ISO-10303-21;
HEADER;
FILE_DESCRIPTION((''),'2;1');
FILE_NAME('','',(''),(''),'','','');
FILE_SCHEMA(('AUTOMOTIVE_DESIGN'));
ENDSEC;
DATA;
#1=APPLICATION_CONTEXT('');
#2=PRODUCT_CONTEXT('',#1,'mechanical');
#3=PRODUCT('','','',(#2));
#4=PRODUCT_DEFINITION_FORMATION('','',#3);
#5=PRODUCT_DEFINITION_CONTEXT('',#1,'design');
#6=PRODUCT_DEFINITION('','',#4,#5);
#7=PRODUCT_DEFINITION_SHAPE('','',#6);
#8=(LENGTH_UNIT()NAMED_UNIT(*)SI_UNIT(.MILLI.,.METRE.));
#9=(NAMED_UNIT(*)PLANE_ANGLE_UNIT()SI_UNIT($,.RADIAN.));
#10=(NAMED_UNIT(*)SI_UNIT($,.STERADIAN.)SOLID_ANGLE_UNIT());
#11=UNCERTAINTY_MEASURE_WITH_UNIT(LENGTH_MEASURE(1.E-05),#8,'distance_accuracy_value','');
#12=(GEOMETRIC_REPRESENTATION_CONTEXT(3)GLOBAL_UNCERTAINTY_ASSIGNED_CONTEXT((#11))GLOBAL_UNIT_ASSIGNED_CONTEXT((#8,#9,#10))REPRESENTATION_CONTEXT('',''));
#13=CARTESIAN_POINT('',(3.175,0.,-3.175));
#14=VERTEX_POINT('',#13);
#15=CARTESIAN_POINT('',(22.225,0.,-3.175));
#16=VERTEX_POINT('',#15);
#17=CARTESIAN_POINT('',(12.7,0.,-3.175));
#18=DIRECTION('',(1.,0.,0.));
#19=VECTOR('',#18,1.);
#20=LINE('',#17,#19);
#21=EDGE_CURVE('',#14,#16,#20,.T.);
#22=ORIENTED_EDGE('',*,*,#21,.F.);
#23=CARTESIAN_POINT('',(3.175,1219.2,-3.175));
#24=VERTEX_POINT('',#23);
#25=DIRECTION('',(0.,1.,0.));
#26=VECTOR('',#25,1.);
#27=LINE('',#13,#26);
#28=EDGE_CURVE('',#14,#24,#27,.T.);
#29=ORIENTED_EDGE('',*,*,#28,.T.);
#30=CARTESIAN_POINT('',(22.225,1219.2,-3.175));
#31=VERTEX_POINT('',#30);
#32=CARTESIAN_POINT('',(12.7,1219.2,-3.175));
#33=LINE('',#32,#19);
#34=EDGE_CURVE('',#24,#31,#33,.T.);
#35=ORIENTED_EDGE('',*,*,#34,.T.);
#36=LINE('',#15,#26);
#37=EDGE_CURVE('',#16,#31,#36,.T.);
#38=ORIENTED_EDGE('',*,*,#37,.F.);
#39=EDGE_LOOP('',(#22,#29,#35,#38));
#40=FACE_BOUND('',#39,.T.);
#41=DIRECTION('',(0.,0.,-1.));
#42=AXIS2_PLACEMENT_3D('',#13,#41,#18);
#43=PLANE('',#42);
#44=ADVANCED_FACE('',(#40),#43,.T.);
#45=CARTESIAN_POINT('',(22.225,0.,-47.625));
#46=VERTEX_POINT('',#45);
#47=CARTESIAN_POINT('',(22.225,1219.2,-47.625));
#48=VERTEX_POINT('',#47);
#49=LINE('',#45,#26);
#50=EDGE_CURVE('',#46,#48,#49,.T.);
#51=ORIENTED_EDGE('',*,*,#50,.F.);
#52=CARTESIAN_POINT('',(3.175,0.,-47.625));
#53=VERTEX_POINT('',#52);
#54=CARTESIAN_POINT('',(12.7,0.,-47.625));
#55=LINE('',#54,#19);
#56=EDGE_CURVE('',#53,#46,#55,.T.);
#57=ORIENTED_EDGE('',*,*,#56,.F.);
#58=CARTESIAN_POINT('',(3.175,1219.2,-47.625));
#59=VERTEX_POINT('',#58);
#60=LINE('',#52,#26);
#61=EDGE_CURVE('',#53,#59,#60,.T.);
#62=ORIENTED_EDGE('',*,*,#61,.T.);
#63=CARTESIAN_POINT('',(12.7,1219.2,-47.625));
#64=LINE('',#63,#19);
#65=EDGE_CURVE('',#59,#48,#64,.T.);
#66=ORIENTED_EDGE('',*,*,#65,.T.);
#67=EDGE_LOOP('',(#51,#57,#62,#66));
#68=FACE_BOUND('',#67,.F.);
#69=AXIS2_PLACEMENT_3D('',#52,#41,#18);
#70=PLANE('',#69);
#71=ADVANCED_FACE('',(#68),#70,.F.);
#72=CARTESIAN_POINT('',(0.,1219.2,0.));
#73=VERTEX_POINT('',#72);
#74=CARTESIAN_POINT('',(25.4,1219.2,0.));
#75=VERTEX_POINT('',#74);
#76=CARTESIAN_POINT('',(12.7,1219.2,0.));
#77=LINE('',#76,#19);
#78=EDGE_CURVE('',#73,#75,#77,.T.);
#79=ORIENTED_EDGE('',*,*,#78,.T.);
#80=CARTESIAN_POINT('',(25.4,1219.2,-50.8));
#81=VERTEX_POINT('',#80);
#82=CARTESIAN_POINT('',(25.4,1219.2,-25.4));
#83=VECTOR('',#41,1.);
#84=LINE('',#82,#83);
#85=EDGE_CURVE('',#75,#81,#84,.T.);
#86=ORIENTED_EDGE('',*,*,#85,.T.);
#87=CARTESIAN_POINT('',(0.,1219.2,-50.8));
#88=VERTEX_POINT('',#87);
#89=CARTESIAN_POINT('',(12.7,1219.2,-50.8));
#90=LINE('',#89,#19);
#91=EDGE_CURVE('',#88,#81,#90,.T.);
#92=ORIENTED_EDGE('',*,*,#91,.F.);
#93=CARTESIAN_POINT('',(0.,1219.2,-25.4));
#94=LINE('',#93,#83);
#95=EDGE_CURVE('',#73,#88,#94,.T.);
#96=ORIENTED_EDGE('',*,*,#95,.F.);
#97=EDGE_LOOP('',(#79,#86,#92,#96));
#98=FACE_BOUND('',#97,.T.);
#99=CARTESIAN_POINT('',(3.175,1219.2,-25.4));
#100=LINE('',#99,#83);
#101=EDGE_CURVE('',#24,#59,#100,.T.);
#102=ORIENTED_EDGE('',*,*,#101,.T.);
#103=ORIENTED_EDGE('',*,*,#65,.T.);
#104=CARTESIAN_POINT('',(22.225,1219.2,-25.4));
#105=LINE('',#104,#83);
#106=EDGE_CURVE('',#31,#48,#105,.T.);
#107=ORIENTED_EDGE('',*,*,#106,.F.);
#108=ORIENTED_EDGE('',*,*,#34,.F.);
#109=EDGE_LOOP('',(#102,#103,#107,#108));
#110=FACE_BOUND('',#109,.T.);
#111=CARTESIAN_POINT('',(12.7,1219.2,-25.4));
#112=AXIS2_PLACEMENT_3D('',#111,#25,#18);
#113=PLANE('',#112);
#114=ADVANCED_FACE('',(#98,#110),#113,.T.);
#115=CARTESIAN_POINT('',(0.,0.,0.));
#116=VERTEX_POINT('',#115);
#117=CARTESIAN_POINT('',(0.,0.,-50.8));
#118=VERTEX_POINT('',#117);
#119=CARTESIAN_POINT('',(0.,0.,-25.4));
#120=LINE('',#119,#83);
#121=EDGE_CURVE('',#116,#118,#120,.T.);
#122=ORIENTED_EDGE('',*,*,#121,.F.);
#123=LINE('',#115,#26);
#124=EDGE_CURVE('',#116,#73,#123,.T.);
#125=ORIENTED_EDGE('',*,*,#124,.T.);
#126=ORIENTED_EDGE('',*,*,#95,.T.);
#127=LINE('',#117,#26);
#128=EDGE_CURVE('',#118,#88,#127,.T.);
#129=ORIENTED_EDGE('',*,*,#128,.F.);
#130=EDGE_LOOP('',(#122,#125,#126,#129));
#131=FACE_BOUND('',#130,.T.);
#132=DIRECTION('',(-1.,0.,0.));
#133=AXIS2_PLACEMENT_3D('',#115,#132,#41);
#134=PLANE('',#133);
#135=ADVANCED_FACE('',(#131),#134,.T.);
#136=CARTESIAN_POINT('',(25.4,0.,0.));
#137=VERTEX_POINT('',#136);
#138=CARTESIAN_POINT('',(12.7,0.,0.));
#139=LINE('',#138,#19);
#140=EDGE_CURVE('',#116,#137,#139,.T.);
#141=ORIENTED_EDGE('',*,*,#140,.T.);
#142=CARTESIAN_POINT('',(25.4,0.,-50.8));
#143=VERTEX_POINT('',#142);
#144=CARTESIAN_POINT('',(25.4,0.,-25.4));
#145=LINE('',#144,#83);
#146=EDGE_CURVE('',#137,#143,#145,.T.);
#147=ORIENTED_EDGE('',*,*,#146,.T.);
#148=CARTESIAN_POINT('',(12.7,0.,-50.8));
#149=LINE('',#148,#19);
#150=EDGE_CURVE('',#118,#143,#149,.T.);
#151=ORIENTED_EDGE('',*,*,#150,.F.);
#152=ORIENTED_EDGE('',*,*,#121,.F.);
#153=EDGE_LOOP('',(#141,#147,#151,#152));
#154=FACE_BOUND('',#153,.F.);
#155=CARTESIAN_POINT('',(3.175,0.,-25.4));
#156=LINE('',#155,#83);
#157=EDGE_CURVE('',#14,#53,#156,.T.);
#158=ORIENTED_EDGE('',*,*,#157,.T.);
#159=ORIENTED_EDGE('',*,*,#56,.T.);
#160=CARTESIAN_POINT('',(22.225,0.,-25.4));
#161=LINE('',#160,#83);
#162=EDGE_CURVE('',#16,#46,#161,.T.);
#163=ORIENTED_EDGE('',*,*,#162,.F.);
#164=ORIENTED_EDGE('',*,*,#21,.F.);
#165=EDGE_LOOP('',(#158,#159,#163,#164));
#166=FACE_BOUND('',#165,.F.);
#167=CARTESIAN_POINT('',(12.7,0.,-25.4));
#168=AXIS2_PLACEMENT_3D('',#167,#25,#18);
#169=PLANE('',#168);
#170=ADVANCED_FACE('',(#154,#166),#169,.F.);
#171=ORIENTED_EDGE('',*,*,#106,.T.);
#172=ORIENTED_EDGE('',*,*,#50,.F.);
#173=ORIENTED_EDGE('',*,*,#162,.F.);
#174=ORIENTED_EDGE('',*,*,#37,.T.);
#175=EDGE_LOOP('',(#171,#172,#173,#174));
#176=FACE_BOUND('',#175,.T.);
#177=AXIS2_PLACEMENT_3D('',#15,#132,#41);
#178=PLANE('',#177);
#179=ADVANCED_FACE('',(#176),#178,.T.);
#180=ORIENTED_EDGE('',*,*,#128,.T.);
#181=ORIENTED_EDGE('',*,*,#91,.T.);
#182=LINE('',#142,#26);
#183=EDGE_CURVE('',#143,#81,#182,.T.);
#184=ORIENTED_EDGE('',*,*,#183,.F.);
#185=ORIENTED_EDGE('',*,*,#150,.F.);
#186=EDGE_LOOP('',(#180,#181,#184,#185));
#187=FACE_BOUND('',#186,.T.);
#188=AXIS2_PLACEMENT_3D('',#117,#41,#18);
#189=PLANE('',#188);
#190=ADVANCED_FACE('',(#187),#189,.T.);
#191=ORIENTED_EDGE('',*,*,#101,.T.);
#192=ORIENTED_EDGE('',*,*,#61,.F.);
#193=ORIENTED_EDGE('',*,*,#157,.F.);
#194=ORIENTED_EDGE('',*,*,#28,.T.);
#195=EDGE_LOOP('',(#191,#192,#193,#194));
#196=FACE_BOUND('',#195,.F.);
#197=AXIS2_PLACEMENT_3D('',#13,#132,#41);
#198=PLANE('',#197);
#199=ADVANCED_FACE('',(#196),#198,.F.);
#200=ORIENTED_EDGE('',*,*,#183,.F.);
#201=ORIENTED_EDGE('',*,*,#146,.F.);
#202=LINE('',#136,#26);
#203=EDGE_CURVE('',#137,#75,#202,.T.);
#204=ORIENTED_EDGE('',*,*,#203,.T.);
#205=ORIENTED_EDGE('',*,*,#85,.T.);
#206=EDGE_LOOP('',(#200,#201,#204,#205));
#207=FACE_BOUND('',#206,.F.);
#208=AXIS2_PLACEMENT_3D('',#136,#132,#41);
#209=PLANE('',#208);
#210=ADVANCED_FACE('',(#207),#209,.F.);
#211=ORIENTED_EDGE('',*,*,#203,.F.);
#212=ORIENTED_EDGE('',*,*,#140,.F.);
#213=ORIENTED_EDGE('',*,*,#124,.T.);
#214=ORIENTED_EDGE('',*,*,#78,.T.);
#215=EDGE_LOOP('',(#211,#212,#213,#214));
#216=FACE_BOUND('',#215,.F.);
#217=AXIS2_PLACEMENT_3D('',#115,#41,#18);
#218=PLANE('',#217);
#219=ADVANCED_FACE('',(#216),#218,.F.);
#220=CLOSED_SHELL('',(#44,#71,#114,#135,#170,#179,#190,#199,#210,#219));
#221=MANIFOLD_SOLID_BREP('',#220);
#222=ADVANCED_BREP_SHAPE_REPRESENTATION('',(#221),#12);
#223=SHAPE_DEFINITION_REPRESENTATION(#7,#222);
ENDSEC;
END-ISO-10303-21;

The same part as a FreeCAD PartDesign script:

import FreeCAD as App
import Part
import Sketcher
from FreeCAD import Vector
Q = App.Units.Quantity

doc = App.newDocument("Part")
body = doc.addObject("PartDesign::Body", "Body")

# Sketch on XZ plane
sketch1 = body.newObject("Sketcher::SketchObject", "Sketch")
sketch1.AttachmentSupport = (doc.getObject("XZ_Plane"), [""])
sketch1.MapMode = "FlatFace"
sketch1.addGeometry([
    Part.LineSegment(Vector(0, -51, 0), Vector(0, 0, 0)),  # 0
    Part.LineSegment(Vector(0, 0, 0), Vector(25, 0, 0)),  # 1
    Part.LineSegment(Vector(25, 0, 0), Vector(25, -51, 0)),  # 2
    Part.LineSegment(Vector(25, -51, 0), Vector(0, -51, 0)),  # 3
    Part.LineSegment(Vector(22, -3, 0), Vector(3, -3, 0)),  # 4
    Part.LineSegment(Vector(3, -3, 0), Vector(3, -48, 0)),  # 5
    Part.LineSegment(Vector(3, -48, 0), Vector(22, -48, 0)),  # 6
    Part.LineSegment(Vector(22, -48, 0), Vector(22, -3, 0)),  # 7
], False)
sketch1.addConstraint([
    Sketcher.Constraint("Coincident", 0, 2, 1, 1),
    Sketcher.Constraint("Coincident", 1, 2, 2, 1),
    Sketcher.Constraint("Coincident", 2, 2, 3, 1),
    Sketcher.Constraint("Coincident", 3, 2, 0, 1),
    Sketcher.Constraint("Coincident", 4, 2, 5, 1),
    Sketcher.Constraint("Coincident", 5, 2, 6, 1),
    Sketcher.Constraint("Coincident", 6, 2, 7, 1),
    Sketcher.Constraint("Coincident", 7, 2, 4, 1),
    Sketcher.Constraint("Vertical", 0),
    Sketcher.Constraint("Horizontal", 1),
    Sketcher.Constraint("Vertical", 2),
    Sketcher.Constraint("Horizontal", 3),
    Sketcher.Constraint("Horizontal", 4),
    Sketcher.Constraint("Vertical", 5),
    Sketcher.Constraint("Horizontal", 6),
    Sketcher.Constraint("Vertical", 7),
    Sketcher.Constraint("Coincident", 0, 2, -1, 1),
    Sketcher.Constraint("DistanceX", 1, 1, 1, 2, Q("1 in")),
    Sketcher.Constraint("DistanceY", 0, 1, 0, 2, Q("2 in")),
    Sketcher.Constraint("DistanceX", 4, 2, 4, 1, Q("0.75 in")),
    Sketcher.Constraint("DistanceY", 5, 2, 5, 1, Q("1.75 in")),
    Sketcher.Constraint("DistanceX", -1, 1, 4, 2, Q("0.125 in")),
    Sketcher.Constraint("DistanceY", 4, 2, -1, 1, Q("0.125 in")),
])
pad1 = body.newObject("PartDesign::Pad", "Pad")
pad1.Profile = sketch1
pad1.Length = Q("48 in")
pad1.Reversed = True

doc.recompute()
